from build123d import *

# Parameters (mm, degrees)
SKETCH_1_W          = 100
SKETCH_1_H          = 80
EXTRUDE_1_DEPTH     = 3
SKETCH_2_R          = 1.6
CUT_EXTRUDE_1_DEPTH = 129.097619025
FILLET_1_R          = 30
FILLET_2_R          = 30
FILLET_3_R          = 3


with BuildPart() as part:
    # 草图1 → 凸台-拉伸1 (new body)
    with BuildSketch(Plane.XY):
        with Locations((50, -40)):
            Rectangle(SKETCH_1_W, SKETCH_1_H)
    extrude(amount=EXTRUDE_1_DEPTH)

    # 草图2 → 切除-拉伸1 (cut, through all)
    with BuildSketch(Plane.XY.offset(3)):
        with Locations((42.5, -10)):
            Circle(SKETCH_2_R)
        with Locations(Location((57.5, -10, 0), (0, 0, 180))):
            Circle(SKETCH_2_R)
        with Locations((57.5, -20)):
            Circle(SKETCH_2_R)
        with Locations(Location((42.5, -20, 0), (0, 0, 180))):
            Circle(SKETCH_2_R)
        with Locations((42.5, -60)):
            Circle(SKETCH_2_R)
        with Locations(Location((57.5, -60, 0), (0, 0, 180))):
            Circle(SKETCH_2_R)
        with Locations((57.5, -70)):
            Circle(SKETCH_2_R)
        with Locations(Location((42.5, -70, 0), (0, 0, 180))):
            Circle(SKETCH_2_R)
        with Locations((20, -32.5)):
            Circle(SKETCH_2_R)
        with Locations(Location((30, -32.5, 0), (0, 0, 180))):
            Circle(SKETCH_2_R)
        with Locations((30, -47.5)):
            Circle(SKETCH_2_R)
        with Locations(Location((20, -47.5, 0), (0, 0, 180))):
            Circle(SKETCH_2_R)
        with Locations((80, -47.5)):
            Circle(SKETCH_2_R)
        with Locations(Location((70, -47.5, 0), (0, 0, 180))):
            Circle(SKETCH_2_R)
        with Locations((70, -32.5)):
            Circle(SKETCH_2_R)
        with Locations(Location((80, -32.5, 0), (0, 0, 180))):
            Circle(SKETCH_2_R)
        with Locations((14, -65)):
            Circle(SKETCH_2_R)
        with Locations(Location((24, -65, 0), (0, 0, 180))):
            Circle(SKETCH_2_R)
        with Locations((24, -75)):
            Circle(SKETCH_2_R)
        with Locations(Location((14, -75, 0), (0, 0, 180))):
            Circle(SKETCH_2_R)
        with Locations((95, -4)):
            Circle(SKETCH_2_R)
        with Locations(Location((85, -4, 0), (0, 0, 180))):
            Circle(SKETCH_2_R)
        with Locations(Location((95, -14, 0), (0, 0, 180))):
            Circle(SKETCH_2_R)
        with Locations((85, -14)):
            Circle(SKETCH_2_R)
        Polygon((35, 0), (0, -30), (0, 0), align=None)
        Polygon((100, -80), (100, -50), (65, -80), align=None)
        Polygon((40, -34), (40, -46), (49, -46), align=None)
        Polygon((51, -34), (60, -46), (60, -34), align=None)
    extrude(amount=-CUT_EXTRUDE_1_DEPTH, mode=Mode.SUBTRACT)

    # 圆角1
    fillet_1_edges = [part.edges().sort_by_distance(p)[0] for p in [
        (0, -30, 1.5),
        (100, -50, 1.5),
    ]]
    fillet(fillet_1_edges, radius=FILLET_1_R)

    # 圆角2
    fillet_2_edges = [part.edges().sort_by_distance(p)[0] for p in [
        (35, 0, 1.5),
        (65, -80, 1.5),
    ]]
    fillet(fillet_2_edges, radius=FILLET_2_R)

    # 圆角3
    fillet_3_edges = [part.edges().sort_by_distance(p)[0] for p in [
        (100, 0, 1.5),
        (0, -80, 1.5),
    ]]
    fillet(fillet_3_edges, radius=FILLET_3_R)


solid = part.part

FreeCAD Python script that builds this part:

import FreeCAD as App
import Part
import Sketcher


def edges_at(feature, points):
    """Names of the edges that pass closest to the given points."""
    edges = feature.Shape.Edges
    near = lambda p: min(range(len(edges)), key=lambda i: edges[i].distToShape(Part.Vertex(*p))[0])
    return sorted({f"Edge{near(p) + 1}" for p in points})

doc = App.newDocument("Part")
body = doc.addObject("PartDesign::Body", "Body")

sketch1 = body.newObject("Sketcher::SketchObject", "Sketch")
sketch1.AttachmentSupport = (doc.getObject("XY_Plane"), [""])
sketch1.MapMode = "FlatFace"
sketch1.addGeometry([
    Part.LineSegment(App.Vector(0, 0, 0), App.Vector(0, -80, 0)),
    Part.LineSegment(App.Vector(0, -80, 0), App.Vector(100, -80, 0)),
    Part.LineSegment(App.Vector(100, -80, 0), App.Vector(100, 0, 0)),
    Part.LineSegment(App.Vector(100, 0, 0), App.Vector(0, 0, 0)),
], False)
sketch1.addConstraint([
    Sketcher.Constraint("Coincident", 0, 2, 1, 1),
    Sketcher.Constraint("Coincident", 1, 2, 2, 1),
    Sketcher.Constraint("Coincident", 2, 2, 3, 1),
    Sketcher.Constraint("Coincident", 3, 2, 0, 1),
    Sketcher.Constraint("Vertical", 0),
    Sketcher.Constraint("Horizontal", 1),
    Sketcher.Constraint("Vertical", 2),
    Sketcher.Constraint("Horizontal", 3),
    Sketcher.Constraint("Coincident", 3, 2, -1, 1),
    Sketcher.Constraint("DistanceX", 1, 1, 1, 2, 100.0),
    Sketcher.Constraint("DistanceY", 0, 2, 0, 1, 80.0),
])
pad1 = body.newObject("PartDesign::Pad", "Pad")
pad1.Profile = sketch1
pad1.Length = 3

sketch2 = body.newObject("Sketcher::SketchObject", "Sketch001")
sketch2.AttachmentSupport = (doc.getObject("XY_Plane"), [""])
sketch2.MapMode = "FlatFace"
sketch2.AttachmentOffset = App.Placement(App.Vector(0, 0, 3), App.Rotation())
sketch2.addGeometry([
    Part.Circle(App.Vector(42.5, -10, 0), App.Vector(0, 0, 1), 1.6),
    Part.Circle(App.Vector(57.5, -10, 0), App.Vector(0, 0, 1), 1.6),
    Part.Circle(App.Vector(57.5, -20, 0), App.Vector(0, 0, 1), 1.6),
    Part.Circle(App.Vector(42.5, -20, 0), App.Vector(0, 0, 1), 1.6),
    Part.Circle(App.Vector(42.5, -60, 0), App.Vector(0, 0, 1), 1.6),
    Part.Circle(App.Vector(57.5, -60, 0), App.Vector(0, 0, 1), 1.6),
    Part.Circle(App.Vector(57.5, -70, 0), App.Vector(0, 0, 1), 1.6),
    Part.Circle(App.Vector(42.5, -70, 0), App.Vector(0, 0, 1), 1.6),
    Part.Circle(App.Vector(20, -32.5, 0), App.Vector(0, 0, 1), 1.6),
    Part.Circle(App.Vector(30, -32.5, 0), App.Vector(0, 0, 1), 1.6),
    Part.Circle(App.Vector(30, -47.5, 0), App.Vector(0, 0, 1), 1.6),
    Part.Circle(App.Vector(20, -47.5, 0), App.Vector(0, 0, 1), 1.6),
    Part.Circle(App.Vector(80, -47.5, 0), App.Vector(0, 0, 1), 1.6),
    Part.Circle(App.Vector(70, -47.5, 0), App.Vector(0, 0, 1), 1.6),
    Part.Circle(App.Vector(70, -32.5, 0), App.Vector(0, 0, 1), 1.6),
    Part.Circle(App.Vector(80, -32.5, 0), App.Vector(0, 0, 1), 1.6),
    Part.Circle(App.Vector(14, -65, 0), App.Vector(0, 0, 1), 1.6),
    Part.Circle(App.Vector(24, -65, 0), App.Vector(0, 0, 1), 1.6),
    Part.Circle(App.Vector(24, -75, 0), App.Vector(0, 0, 1), 1.6),
    Part.Circle(App.Vector(14, -75, 0), App.Vector(0, 0, 1), 1.6),
    Part.Circle(App.Vector(95, -4, 0), App.Vector(0, 0, 1), 1.6),
    Part.Circle(App.Vector(85, -4, 0), App.Vector(0, 0, 1), 1.6),
    Part.Circle(App.Vector(95, -14, 0), App.Vector(0, 0, 1), 1.6),
    Part.Circle(App.Vector(85, -14, 0), App.Vector(0, 0, 1), 1.6),
    Part.LineSegment(App.Vector(0, -30, 0), App.Vector(35, 0, 0)),
    Part.LineSegment(App.Vector(35, 0, 0), App.Vector(0, 0, 0)),
    Part.LineSegment(App.Vector(0, 0, 0), App.Vector(0, -30, 0)),
    Part.LineSegment(App.Vector(100, -80, 0), App.Vector(100, -50, 0)),
    Part.LineSegment(App.Vector(100, -50, 0), App.Vector(65, -80, 0)),
    Part.LineSegment(App.Vector(65, -80, 0), App.Vector(100, -80, 0)),
    Part.LineSegment(App.Vector(40, -34, 0), App.Vector(40, -46, 0)),
    Part.LineSegment(App.Vector(40, -46, 0), App.Vector(49, -46, 0)),
    Part.LineSegment(App.Vector(49, -46, 0), App.Vector(40, -34, 0)),
    Part.LineSegment(App.Vector(51, -34, 0), App.Vector(60, -46, 0)),
    Part.LineSegment(App.Vector(60, -46, 0), App.Vector(60, -34, 0)),
    Part.LineSegment(App.Vector(60, -34, 0), App.Vector(51, -34, 0)),
], False)
sketch2.addConstraint([
    Sketcher.Constraint("Coincident", 24, 2, 25, 1),
    Sketcher.Constraint("Coincident", 25, 2, 26, 1),
    Sketcher.Constraint("Coincident", 26, 2, 24, 1),
    Sketcher.Constraint("Coincident", 27, 2, 28, 1),
    Sketcher.Constraint("Coincident", 28, 2, 29, 1),
    Sketcher.Constraint("Coincident", 29, 2, 27, 1),
    Sketcher.Constraint("Coincident", 30, 2, 31, 1),
    Sketcher.Constraint("Coincident", 31, 2, 32, 1),
    Sketcher.Constraint("Coincident", 32, 2, 30, 1),
    Sketcher.Constraint("Coincident", 33, 2, 34, 1),
    Sketcher.Constraint("Coincident", 34, 2, 35, 1),
    Sketcher.Constraint("Coincident", 35, 2, 33, 1),
    Sketcher.Constraint("Horizontal", 25),
    Sketcher.Constraint("Vertical", 26),
    Sketcher.Constraint("Vertical", 27),
    Sketcher.Constraint("Horizontal", 29),
    Sketcher.Constraint("Vertical", 30),
    Sketcher.Constraint("Horizontal", 31),
    Sketcher.Constraint("Vertical", 34),
    Sketcher.Constraint("Horizontal", 35),
    Sketcher.Constraint("Coincident", 25, 2, -1, 1),
    Sketcher.Constraint("Equal", 0, 1),
    Sketcher.Constraint("Equal", 1, 2),
    Sketcher.Constraint("Equal", 2, 3),
    Sketcher.Constraint("Equal", 3, 4),
    Sketcher.Constraint("Equal", 4, 5),
    Sketcher.Constraint("Equal", 5, 6),
    Sketcher.Constraint("Equal", 6, 7),
    Sketcher.Constraint("Equal", 7, 8),
    Sketcher.Constraint("Equal", 8, 9),
    Sketcher.Constraint("Equal", 9, 10),
    Sketcher.Constraint("Equal", 10, 11),
    Sketcher.Constraint("Equal", 11, 12),
    Sketcher.Constraint("Equal", 12, 13),
    Sketcher.Constraint("Equal", 13, 14),
    Sketcher.Constraint("Equal", 14, 15),
    Sketcher.Constraint("Equal", 15, 16),
    Sketcher.Constraint("Equal", 16, 17),
    Sketcher.Constraint("Equal", 17, 18),
    Sketcher.Constraint("Equal", 18, 19),
    Sketcher.Constraint("Equal", 19, 20),
    Sketcher.Constraint("Equal", 20, 21),
    Sketcher.Constraint("Equal", 21, 22),
    Sketcher.Constraint("Equal", 22, 23),
    Sketcher.Constraint("Parallel", 24, 28),
    Sketcher.Constraint("Parallel", 32, 33),
    Sketcher.Constraint("Horizontal", 0, 3, 1, 3),
    Sketcher.Constraint("Horizontal", 2, 3, 3, 3),
    Sketcher.Constraint("Horizontal", 4, 3, 5, 3),
    Sketcher.Constraint("Horizontal", 6, 3, 7, 3),
    Sketcher.Constraint("Horizontal", 8, 3, 9, 3),
    Sketcher.Constraint("Horizontal", 10, 3, 11, 3),
    Sketcher.Constraint("Horizontal", 11, 3, 12, 3),
    Sketcher.Constraint("Horizontal", 12, 3, 13, 3),
    Sketcher.Constraint("Horizontal", 9, 3, 14, 3),
    Sketcher.Constraint("Horizontal", 14, 3, 15, 3),
    Sketcher.Constraint("Horizontal", 16, 3, 17, 3),
    Sketcher.Constraint("Horizontal", 18, 3, 19, 3),
    Sketcher.Constraint("Horizontal", 20, 3, 21, 3),
    Sketcher.Constraint("Horizontal", 22, 3, 23, 3),
    Sketcher.Constraint("Horizontal", 31, 2, 33, 2),
    Sketcher.Constraint("Horizontal", 32, 2, 34, 2),
    Sketcher.Constraint("Vertical", 1, 3, 2, 3),
    Sketcher.Constraint("Vertical", 0, 3, 3, 3),
    Sketcher.Constraint("Vertical", 3, 3, 4, 3),
    Sketcher.Constraint("Vertical", 2, 3, 5, 3),
    Sketcher.Constraint("Vertical", 5, 3, 6, 3),
    Sketcher.Constraint("Vertical", 4, 3, 7, 3),
    Sketcher.Constraint("Vertical", 9, 3, 10, 3),
    Sketcher.Constraint("Vertical", 8, 3, 11, 3),
    Sketcher.Constraint("Vertical", 13, 3, 14, 3),
    Sketcher.Constraint("Vertical", 12, 3, 15, 3),
    Sketcher.Constraint("Vertical", 17, 3, 18, 3),
    Sketcher.Constraint("Vertical", 16, 3, 19, 3),
    Sketcher.Constraint("Vertical", 20, 3, 22, 3),
    Sketcher.Constraint("Vertical", 21, 3, 23, 3),
    Sketcher.Constraint("Equal", 25, 29),
    Sketcher.Constraint("Diameter", 0, 3.2),
    Sketcher.Constraint("DistanceX", 25, 2, 25, 1, 35.0),
    Sketcher.Constraint("DistanceX", 31, 1, 31, 2, 9.0),
    Sketcher.Constraint("DistanceY", 26, 2, 26, 1, 30.0),
    Sketcher.Constraint("DistanceY", 30, 2, 30, 1, 12.0),
    Sketcher.Constraint("DistanceY", 0, 3, -1, 1, 10.0),
    Sketcher.Constraint("DistanceY", 2, 3, -1, 1, 20.0),
    Sketcher.Constraint("DistanceY", 4, 3, -1, 1, 60.0),
    Sketcher.Constraint("DistanceY", 6, 3, -1, 1, 70.0),
    Sketcher.Constraint("DistanceX", -1, 1, 8, 3, 20.0),
    Sketcher.Constraint("DistanceX", -1, 1, 9, 3, 30.0),
    Sketcher.Constraint("DistanceX", -1, 1, 12, 3, 80.0),
    Sketcher.Constraint("DistanceX", -1, 1, 13, 3, 70.0),
    Sketcher.Constraint("DistanceX", -1, 1, 16, 3, 14.0),
    Sketcher.Constraint("DistanceY", 16, 3, -1, 1, 65.0),
    Sketcher.Constraint("DistanceX", -1, 1, 17, 3, 24.0),
    Sketcher.Constraint("DistanceY", 18, 3, -1, 1, 75.0),
    Sketcher.Constraint("DistanceX", -1, 1, 20, 3, 95.0),
    Sketcher.Constraint("DistanceY", 20, 3, -1, 1, 4.0),
    Sketcher.Constraint("DistanceX", -1, 1, 21, 3, 85.0),
    Sketcher.Constraint("DistanceY", 22, 3, -1, 1, 14.0),
    Sketcher.Constraint("DistanceX", -1, 1, 27, 2, 100.0),
    Sketcher.Constraint("DistanceY", 27, 2, -1, 1, 50.0),
    Sketcher.Constraint("DistanceX", -1, 1, 30, 2, 40.0),
    Sketcher.Constraint("DistanceY", 30, 2, -1, 1, 46.0),
    Sketcher.Constraint("DistanceX", -1, 1, 33, 2, 60.0),
    Sketcher.Constraint("DistanceX", 0, 3, 1, 3, 15.0),
    Sketcher.Constraint("DistanceY", 10, 3, 9, 3, 15.0),
    Sketcher.Constraint("DistanceX", -1, 1, 0, 3, 42.5),
    Sketcher.Constraint("DistanceY", 8, 3, -1, 1, 32.5),
])
pocket1 = body.newObject("PartDesign::Pocket", "Pocket")
pocket1.Profile = sketch2
pocket1.Type = "ThroughAll"
doc.recompute()

fillet = body.newObject("PartDesign::Fillet", "Fillet")
fillet.Base = (pocket1, edges_at(pocket1, [(0, -30, 1.5), (100, -50, 1.5)]))
fillet.Radius = 30
doc.recompute()

fillet2 = body.newObject("PartDesign::Fillet", "Fillet001")
fillet2.Base = (fillet, edges_at(fillet, [(35, 0, 1.5), (65, -80, 1.5)]))
fillet2.Radius = 30
doc.recompute()

fillet3 = body.newObject("PartDesign::Fillet", "Fillet002")
fillet3.Base = (fillet2, edges_at(fillet2, [(100, 0, 1.5), (0, -80, 1.5)]))
fillet3.Radius = 3

doc.recompute()
